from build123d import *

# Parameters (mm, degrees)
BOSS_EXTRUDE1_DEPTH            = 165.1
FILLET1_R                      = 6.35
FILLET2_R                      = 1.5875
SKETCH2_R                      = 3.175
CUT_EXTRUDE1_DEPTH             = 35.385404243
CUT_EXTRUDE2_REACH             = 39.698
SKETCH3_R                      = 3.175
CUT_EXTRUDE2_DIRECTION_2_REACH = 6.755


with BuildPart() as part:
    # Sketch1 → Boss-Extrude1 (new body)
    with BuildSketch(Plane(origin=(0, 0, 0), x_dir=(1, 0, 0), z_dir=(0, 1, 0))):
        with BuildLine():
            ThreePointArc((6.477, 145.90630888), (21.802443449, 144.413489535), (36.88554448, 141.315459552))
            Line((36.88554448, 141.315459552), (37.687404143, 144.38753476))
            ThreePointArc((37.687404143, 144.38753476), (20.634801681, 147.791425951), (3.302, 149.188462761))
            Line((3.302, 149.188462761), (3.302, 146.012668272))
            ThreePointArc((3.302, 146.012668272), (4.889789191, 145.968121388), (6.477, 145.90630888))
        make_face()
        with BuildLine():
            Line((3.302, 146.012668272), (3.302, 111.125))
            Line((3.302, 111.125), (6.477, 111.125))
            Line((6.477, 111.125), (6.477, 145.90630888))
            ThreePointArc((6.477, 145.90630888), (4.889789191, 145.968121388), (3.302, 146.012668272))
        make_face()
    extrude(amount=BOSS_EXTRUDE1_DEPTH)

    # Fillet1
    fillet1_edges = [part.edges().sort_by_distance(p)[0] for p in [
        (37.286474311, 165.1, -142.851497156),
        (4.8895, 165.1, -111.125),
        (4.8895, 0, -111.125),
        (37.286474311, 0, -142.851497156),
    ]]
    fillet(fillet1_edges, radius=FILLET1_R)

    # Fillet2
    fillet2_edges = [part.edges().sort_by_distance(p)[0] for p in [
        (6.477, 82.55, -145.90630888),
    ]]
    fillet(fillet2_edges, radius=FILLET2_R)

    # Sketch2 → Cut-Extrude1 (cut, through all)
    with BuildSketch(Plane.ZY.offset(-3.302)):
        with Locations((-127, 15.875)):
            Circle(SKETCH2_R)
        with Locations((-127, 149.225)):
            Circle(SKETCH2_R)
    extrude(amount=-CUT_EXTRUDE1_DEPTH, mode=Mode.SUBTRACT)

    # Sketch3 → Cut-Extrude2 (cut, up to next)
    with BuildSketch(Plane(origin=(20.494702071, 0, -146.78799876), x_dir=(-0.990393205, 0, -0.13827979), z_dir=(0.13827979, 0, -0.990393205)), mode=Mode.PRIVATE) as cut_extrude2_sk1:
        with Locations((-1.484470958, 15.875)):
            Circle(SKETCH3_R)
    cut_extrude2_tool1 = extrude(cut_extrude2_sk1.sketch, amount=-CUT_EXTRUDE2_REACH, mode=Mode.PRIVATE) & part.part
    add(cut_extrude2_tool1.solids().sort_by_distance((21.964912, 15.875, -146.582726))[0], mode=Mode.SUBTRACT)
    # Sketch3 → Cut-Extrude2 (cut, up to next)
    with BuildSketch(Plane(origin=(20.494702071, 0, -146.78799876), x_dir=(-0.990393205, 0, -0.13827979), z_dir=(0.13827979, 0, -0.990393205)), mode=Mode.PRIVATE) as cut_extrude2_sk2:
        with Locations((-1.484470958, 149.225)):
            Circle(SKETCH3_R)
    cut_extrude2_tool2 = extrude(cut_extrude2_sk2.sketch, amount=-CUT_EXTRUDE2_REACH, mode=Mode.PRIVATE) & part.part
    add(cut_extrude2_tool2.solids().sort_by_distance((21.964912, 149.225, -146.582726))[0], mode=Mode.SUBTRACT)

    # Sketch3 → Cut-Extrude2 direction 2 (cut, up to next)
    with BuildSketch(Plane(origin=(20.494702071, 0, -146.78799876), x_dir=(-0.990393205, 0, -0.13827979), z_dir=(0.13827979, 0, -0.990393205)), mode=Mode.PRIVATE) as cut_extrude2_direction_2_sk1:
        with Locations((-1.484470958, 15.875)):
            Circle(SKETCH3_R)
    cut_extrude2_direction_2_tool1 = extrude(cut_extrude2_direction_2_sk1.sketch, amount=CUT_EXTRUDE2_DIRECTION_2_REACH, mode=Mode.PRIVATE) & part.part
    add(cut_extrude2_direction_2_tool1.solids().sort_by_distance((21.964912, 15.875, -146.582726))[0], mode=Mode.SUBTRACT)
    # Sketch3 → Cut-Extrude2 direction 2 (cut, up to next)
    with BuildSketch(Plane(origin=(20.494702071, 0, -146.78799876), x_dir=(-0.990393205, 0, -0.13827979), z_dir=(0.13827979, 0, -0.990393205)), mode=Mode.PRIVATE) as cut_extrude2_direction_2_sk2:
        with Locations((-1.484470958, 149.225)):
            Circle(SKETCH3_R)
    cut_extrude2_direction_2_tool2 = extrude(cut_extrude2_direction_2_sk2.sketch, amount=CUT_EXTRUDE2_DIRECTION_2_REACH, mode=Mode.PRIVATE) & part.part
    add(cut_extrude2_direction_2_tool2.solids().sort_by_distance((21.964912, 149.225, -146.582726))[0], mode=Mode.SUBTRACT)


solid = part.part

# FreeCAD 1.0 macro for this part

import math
import FreeCAD as App
import Part
import Sketcher

V = App.Vector
Q = App.Units.Quantity


def edges_at(feature, points):
    """Names of the edges that pass closest to the given points."""
    edges = feature.Shape.Edges
    near = lambda p: min(range(len(edges)), key=lambda i: edges[i].distToShape(Part.Vertex(*p))[0])
    return sorted({f"Edge{near(p) + 1}" for p in points})

doc = App.newDocument("Part")
body = doc.addObject("PartDesign::Body", "Body")

sketch1 = doc.addObject("Sketcher::SketchObject", "Sketch")
body.addObject(sketch1)
sketch1.AttachmentSupport = (doc.XZ_Plane, [""])
sketch1.MapMode = "FlatFace"
sketch1.addGeometry([
    Part.ArcOfCircle(Part.Circle(V(0, 0, 0), V(0, 0, 1), 146.05), math.radians(-87.458223), math.radians(-75.37129)),
    Part.LineSegment(V(36.885544, -141.31546, 0), V(37.687404, -144.387535, 0)),
    Part.ArcOfCircle(Part.Circle(V(0, 0, 0), V(0, 0, 1), 149.225), math.radians(-88.732075), math.radians(-75.37129)),
    Part.LineSegment(V(3.302, -149.188463, 0), V(3.302, -111.125, 0)),
    Part.LineSegment(V(3.302, -111.125, 0), V(6.477, -111.125, 0)),
    Part.LineSegment(V(6.477, -111.125, 0), V(6.477, -145.906309, 0)),
], False)
sketch1.addConstraint([
    Sketcher.Constraint("Coincident", 0, 2, 1, 1),
    Sketcher.Constraint("Coincident", 1, 2, 2, 2),
    Sketcher.Constraint("Coincident", 2, 1, 3, 1),
    Sketcher.Constraint("Coincident", 3, 2, 4, 1),
    Sketcher.Constraint("Coincident", 4, 2, 5, 1),
    Sketcher.Constraint("Coincident", 5, 2, 0, 1),
    Sketcher.Constraint("Vertical", 3),
    Sketcher.Constraint("Horizontal", 4),
    Sketcher.Constraint("Vertical", 5),
    Sketcher.Constraint("Coincident", 0, 3, -1, 1),
    Sketcher.Constraint("Coincident", 2, 3, -1, 1),
    Sketcher.Constraint("Radius", 0, Q("5.75 in")),
    Sketcher.Constraint("Radius", 2, Q("5.875 in")),
    Sketcher.Constraint("DistanceX", 4, 1, 4, 2, Q("0.125 in")),
    Sketcher.Constraint("DistanceX", -1, 1, 2, 1, Q("0.13 in")),
    Sketcher.Constraint("DistanceY", 3, 2, -1, 1, Q("4.375 in")),
    Sketcher.Constraint("DistanceY", 0, 2, -1, 1, Q("141.31546 mm")),
    Sketcher.Constraint("DistanceX", 0, 2, 1, 2, Q("0.80186 mm")),
])
pad1 = doc.addObject("PartDesign::Pad", "Pad")
body.addObject(pad1)
pad1.Profile = sketch1
pad1.Length = Q("6.5 in")
pad1.Reversed = True
doc.recompute()

fillet = doc.addObject("PartDesign::Fillet", "Fillet")
body.addObject(fillet)
fillet.Base = (pad1, edges_at(pad1, [
    (37.286, 165.1, -142.851),
    (4.889, 165.1, -111.125),
    (4.889, 0, -111.125),
    (37.286, 0, -142.851),
]))
fillet.Radius = Q("0.25 in")
doc.recompute()

fillet2 = doc.addObject("PartDesign::Fillet", "Fillet001")
body.addObject(fillet2)
fillet2.Base = (fillet, edges_at(fillet, [(6.477, 82.55, -145.906)]))
fillet2.Radius = Q("0.0625 in")

sketch2 = doc.addObject("Sketcher::SketchObject", "Sketch001")
body.addObject(sketch2)
sketch2.AttachmentSupport = (doc.YZ_Plane, [""])
sketch2.MapMode = "FlatFace"
sketch2.AttachmentOffset = App.Placement(V(0, 0, 0.13 * 25.4), App.Rotation())
sketch2.addGeometry([
    Part.Circle(V(15.875, -127, 0), V(0, 0, 1), 3.175),
    Part.Circle(V(149.225, -127, 0), V(0, 0, 1), 3.175),
], False)
sketch2.addConstraint([
    Sketcher.Constraint("Equal", 0, 1),
    Sketcher.Constraint("Horizontal", 0, 3, 1, 3),
    Sketcher.Constraint("Diameter", 0, Q("0.25 in")),
    Sketcher.Constraint("DistanceY", 0, 3, -1, 1, Q("5 in")),
    Sketcher.Constraint("DistanceX", 0, 3, 1, 3, Q("5.25 in")),
    Sketcher.Constraint("DistanceX", -1, 1, 0, 3, Q("0.625 in")),
])
pocket1 = doc.addObject("PartDesign::Pocket", "Pocket")
body.addObject(pocket1)
pocket1.Profile = sketch2
pocket1.Type = "ThroughAll"
pocket1.Reversed = True

sketch3 = doc.addObject("Sketcher::SketchObject", "Sketch002")
body.addObject(sketch3)
sketch3.Placement = App.Placement(V(20.494702, 0, -146.787999), App.Rotation(V(-0.990393205, 0, -0.13827979), V(0, 1.000000001, 0), V(0.13827979, 0, -0.990393205), "ZXY"))
sketch3.addGeometry(Part.Circle(V(-1.484471, 15.875, 0), V(0, 0, 1), 3.175), False)
sketch3.addConstraint([
    Sketcher.Constraint("Diameter", 0, Q("0.25 in")),
    Sketcher.Constraint("DistanceY", -1, 1, 0, 3, Q("0.625 in")),
    Sketcher.Constraint("DistanceX", 0, 3, -1, 1, Q("1.484471 mm")),
])
pocket2 = doc.addObject("PartDesign::Pocket", "Pocket001")
body.addObject(pocket2)
pocket2.Profile = sketch3
pocket2.Type = "UpToFirst"

sketch4 = doc.addObject("Sketcher::SketchObject", "Sketch003")
body.addObject(sketch4)
sketch4.Placement = App.Placement(V(20.494702, 0, -146.787999), App.Rotation(V(-0.990393205, 0, -0.13827979), V(0, 1.000000001, 0), V(0.13827979, 0, -0.990393205), "ZXY"))
sketch4.addGeometry(Part.Circle(V(-1.484471, 149.225, 0), V(0, 0, 1), 3.175), False)
sketch4.addConstraint([
    Sketcher.Constraint("Diameter", 0, Q("0.25 in")),
    Sketcher.Constraint("DistanceY", -1, 1, 0, 3, Q("5.875 in")),
    Sketcher.Constraint("DistanceX", 0, 3, -1, 1, Q("1.484471 mm")),
])
pocket3 = doc.addObject("PartDesign::Pocket", "Pocket002")
body.addObject(pocket3)
pocket3.Profile = sketch4
pocket3.Type = "UpToFirst"

sketch5 = doc.addObject("Sketcher::SketchObject", "Sketch004")
body.addObject(sketch5)
sketch5.Placement = App.Placement(V(20.494702, 0, -146.787999), App.Rotation(V(-0.990393205, 0, -0.13827979), V(0, 1.000000001, 0), V(0.13827979, 0, -0.990393205), "ZXY"))
sketch5.addGeometry(Part.Circle(V(-1.484471, 15.875, 0), V(0, 0, 1), 3.175), False)
sketch5.addConstraint([
    Sketcher.Constraint("Diameter", 0, Q("0.25 in")),
    Sketcher.Constraint("DistanceY", -1, 1, 0, 3, Q("0.625 in")),
    Sketcher.Constraint("DistanceX", 0, 3, -1, 1, Q("1.484471 mm")),
])
pocket4 = doc.addObject("PartDesign::Pocket", "Pocket003")
body.addObject(pocket4)
pocket4.Profile = sketch5
pocket4.Type = "UpToFirst"
pocket4.Reversed = True

sketch6 = doc.addObject("Sketcher::SketchObject", "Sketch005")
body.addObject(sketch6)
sketch6.Placement = App.Placement(V(20.494702, 0, -146.787999), App.Rotation(V(-0.990393205, 0, -0.13827979), V(0, 1.000000001, 0), V(0.13827979, 0, -0.990393205), "ZXY"))
sketch6.addGeometry(Part.Circle(V(-1.484471, 149.225, 0), V(0, 0, 1), 3.175), False)
sketch6.addConstraint([
    Sketcher.Constraint("Diameter", 0, Q("0.25 in")),
    Sketcher.Constraint("DistanceY", -1, 1, 0, 3, Q("5.875 in")),
    Sketcher.Constraint("DistanceX", 0, 3, -1, 1, Q("1.484471 mm")),
])
pocket5 = doc.addObject("PartDesign::Pocket", "Pocket004")
body.addObject(pocket5)
pocket5.Profile = sketch6
pocket5.Type = "UpToFirst"
pocket5.Reversed = True

doc.recompute()
